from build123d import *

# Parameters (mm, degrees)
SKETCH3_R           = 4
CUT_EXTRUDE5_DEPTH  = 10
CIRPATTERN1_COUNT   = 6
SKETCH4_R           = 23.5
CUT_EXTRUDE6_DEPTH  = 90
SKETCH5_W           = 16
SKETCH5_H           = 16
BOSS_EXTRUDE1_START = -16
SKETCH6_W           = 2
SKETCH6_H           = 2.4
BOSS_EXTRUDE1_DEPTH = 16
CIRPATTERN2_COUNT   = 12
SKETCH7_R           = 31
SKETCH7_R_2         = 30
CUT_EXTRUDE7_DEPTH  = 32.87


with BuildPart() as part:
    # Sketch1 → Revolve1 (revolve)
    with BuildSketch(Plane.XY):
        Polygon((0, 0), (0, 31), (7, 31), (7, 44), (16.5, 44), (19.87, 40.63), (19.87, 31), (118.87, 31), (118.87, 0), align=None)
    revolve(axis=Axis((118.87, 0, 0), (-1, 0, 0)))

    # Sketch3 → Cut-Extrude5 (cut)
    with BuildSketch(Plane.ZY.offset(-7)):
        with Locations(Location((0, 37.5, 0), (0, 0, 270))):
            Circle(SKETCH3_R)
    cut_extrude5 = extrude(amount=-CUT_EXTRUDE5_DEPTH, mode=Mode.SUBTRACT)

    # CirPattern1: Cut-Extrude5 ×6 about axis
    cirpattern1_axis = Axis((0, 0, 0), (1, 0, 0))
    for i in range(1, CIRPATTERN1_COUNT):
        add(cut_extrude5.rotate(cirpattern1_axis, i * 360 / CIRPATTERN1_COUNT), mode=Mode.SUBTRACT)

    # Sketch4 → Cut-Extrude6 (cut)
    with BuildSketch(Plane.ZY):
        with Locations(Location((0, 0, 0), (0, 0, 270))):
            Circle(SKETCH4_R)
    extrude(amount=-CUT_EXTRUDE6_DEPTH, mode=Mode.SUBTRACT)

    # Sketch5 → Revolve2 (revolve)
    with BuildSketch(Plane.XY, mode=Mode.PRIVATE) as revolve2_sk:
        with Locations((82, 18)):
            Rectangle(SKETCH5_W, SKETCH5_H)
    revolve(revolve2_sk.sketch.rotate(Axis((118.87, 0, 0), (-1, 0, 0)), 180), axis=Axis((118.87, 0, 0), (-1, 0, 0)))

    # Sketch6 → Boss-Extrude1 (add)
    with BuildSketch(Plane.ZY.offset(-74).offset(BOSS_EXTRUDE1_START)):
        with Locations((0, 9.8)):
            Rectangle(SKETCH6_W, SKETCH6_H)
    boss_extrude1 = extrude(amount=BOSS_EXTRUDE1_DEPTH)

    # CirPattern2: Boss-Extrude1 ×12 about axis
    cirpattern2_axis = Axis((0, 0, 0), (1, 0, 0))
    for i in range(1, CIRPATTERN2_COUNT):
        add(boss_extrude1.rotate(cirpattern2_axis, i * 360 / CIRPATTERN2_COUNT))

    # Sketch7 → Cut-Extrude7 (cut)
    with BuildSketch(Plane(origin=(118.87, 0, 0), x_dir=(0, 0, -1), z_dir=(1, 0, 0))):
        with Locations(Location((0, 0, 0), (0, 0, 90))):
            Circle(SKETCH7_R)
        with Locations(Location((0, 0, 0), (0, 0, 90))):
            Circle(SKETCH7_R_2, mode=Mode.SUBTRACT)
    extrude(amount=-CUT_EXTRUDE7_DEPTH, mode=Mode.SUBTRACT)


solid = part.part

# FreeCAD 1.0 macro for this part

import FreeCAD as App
import Part
import Sketcher
Q = App.Units.Quantity

doc = App.newDocument("Part")
body = doc.addObject("PartDesign::Body", "Body")

# Sketch on XY plane
sketch1 = doc.addObject("Sketcher::SketchObject", "Sketch")
body.addObject(sketch1)
sketch1.AttachmentSupport = (doc.XY_Plane, [""])
sketch1.MapMode = "FlatFace"
sketch1.addGeometry(Part.LineSegment(App.Vector(0, 31, 0), App.Vector(0, 0, 0)), False)
sketch1.addGeometry(Part.LineSegment(App.Vector(0, 0, 0), App.Vector(118.9, 0, 0)), False)
sketch1.addGeometry(Part.LineSegment(App.Vector(118.9, 0, 0), App.Vector(118.9, 31, 0)), False)
sketch1.addGeometry(Part.LineSegment(App.Vector(118.9, 31, 0), App.Vector(19.9, 31, 0)), False)
sketch1.addGeometry(Part.LineSegment(App.Vector(19.9, 31, 0), App.Vector(19.9, 40.6, 0)), False)
sketch1.addGeometry(Part.LineSegment(App.Vector(19.9, 40.6, 0), App.Vector(16.5, 44, 0)), False)
sketch1.addGeometry(Part.LineSegment(App.Vector(16.5, 44, 0), App.Vector(7, 44, 0)), False)
sketch1.addGeometry(Part.LineSegment(App.Vector(7, 44, 0), App.Vector(7, 31, 0)), False)
sketch1.addGeometry(Part.LineSegment(App.Vector(7, 31, 0), App.Vector(0, 31, 0)), False)
sketch1.addConstraint(Sketcher.Constraint("Coincident", 0, 2, 1, 1))
sketch1.addConstraint(Sketcher.Constraint("Coincident", 1, 2, 2, 1))
sketch1.addConstraint(Sketcher.Constraint("Coincident", 2, 2, 3, 1))
sketch1.addConstraint(Sketcher.Constraint("Coincident", 3, 2, 4, 1))
sketch1.addConstraint(Sketcher.Constraint("Coincident", 4, 2, 5, 1))
sketch1.addConstraint(Sketcher.Constraint("Coincident", 5, 2, 6, 1))
sketch1.addConstraint(Sketcher.Constraint("Coincident", 6, 2, 7, 1))
sketch1.addConstraint(Sketcher.Constraint("Coincident", 7, 2, 8, 1))
sketch1.addConstraint(Sketcher.Constraint("Coincident", 8, 2, 0, 1))
sketch1.addConstraint(Sketcher.Constraint("Vertical", 0))
sketch1.addConstraint(Sketcher.Constraint("Horizontal", 1))
sketch1.addConstraint(Sketcher.Constraint("Vertical", 2))
sketch1.addConstraint(Sketcher.Constraint("Horizontal", 3))
sketch1.addConstraint(Sketcher.Constraint("Vertical", 4))
sketch1.addConstraint(Sketcher.Constraint("Horizontal", 6))
sketch1.addConstraint(Sketcher.Constraint("Vertical", 7))
sketch1.addConstraint(Sketcher.Constraint("Horizontal", 8))
sketch1.addConstraint(Sketcher.Constraint("Coincident", 0, 2, -1, 1))
sketch1.addConstraint(Sketcher.Constraint("Horizontal", 3, 2, 7, 2))
sketch1.addConstraint(Sketcher.Constraint("DistanceX", 3, 2, 3, 1, Q("99 mm")))
sketch1.addConstraint(Sketcher.Constraint("DistanceX", 8, 2, 8, 1, Q("7 mm")))
sketch1.addConstraint(Sketcher.Constraint("DistanceY", 0, 2, 0, 1, Q("31 mm")))
sketch1.addConstraint(Sketcher.Constraint("DistanceY", 7, 2, 7, 1, Q("13 mm")))
sketch1.addConstraint(Sketcher.Constraint("Angle", 5, Q("135 deg")))
sketch1.addConstraint(Sketcher.Constraint("DistanceX", 6, 2, 6, 1, Q("9.5 mm")))
sketch1.addConstraint(Sketcher.Constraint("DistanceX", 1, 1, 1, 2, Q("118.87 mm")))
revolution = doc.addObject("PartDesign::Revolution", "Revolution")
body.addObject(revolution)
revolution.Profile = sketch1
revolution.ReferenceAxis = (sketch1, ["H_Axis"])
revolution.Angle = 360

# Sketch on YZ plane
sketch2 = doc.addObject("Sketcher::SketchObject", "Sketch001")
body.addObject(sketch2)
sketch2.AttachmentSupport = (doc.YZ_Plane, [""])
sketch2.MapMode = "FlatFace"
sketch2.AttachmentOffset = App.Placement(App.Vector(0, 0, 7), App.Rotation())
sketch2.addGeometry(Part.Circle(App.Vector(37.5, 0, 0), App.Vector(0, 0, 1), 4), False)
sketch2.addConstraint(Sketcher.Constraint("PointOnObject", 0, 3, -1))
sketch2.addConstraint(Sketcher.Constraint("Diameter", 0, Q("8 mm")))
sketch2.addConstraint(Sketcher.Constraint("DistanceX", -1, 1, 0, 3, Q("37.5 mm")))
pocket1 = doc.addObject("PartDesign::Pocket", "Pocket")
body.addObject(pocket1)
pocket1.Profile = sketch2
pocket1.Length = 10
pocket1.Reversed = True
doc.recompute()

polarpattern = doc.addObject("PartDesign::PolarPattern", "PolarPattern")
body.addObject(polarpattern)
polarpattern.Originals = [pocket1]
polarpattern.Axis = (doc.X_Axis, [""])
polarpattern.Angle = 360
polarpattern.Occurrences = 6
body.Tip = polarpattern

# Sketch on YZ plane
sketch3 = doc.addObject("Sketcher::SketchObject", "Sketch002")
body.addObject(sketch3)
sketch3.AttachmentSupport = (doc.YZ_Plane, [""])
sketch3.MapMode = "FlatFace"
sketch3.addGeometry(Part.Circle(App.Vector(0, 0, 0), App.Vector(0, 0, 1), 24), False)
sketch3.addConstraint(Sketcher.Constraint("Coincident", 0, 3, -1, 1))
sketch3.addConstraint(Sketcher.Constraint("Diameter", 0, Q("47 mm")))
pocket2 = doc.addObject("PartDesign::Pocket", "Pocket001")
body.addObject(pocket2)
pocket2.Profile = sketch3
pocket2.Length = 90
pocket2.Reversed = True

# Sketch on XY plane
sketch4 = doc.addObject("Sketcher::SketchObject", "Sketch003")
body.addObject(sketch4)
sketch4.AttachmentSupport = (doc.XY_Plane, [""])
sketch4.MapMode = "FlatFace"
sketch4.addGeometry(Part.LineSegment(App.Vector(74, 26, 0), App.Vector(74, 10, 0)), False)
sketch4.addGeometry(Part.LineSegment(App.Vector(74, 10, 0), App.Vector(90, 10, 0)), False)
sketch4.addGeometry(Part.LineSegment(App.Vector(90, 10, 0), App.Vector(90, 26, 0)), False)
sketch4.addGeometry(Part.LineSegment(App.Vector(90, 26, 0), App.Vector(74, 26, 0)), False)
sketch4.addConstraint(Sketcher.Constraint("Coincident", 0, 2, 1, 1))
sketch4.addConstraint(Sketcher.Constraint("Coincident", 1, 2, 2, 1))
sketch4.addConstraint(Sketcher.Constraint("Coincident", 2, 2, 3, 1))
sketch4.addConstraint(Sketcher.Constraint("Coincident", 3, 2, 0, 1))
sketch4.addConstraint(Sketcher.Constraint("Vertical", 0))
sketch4.addConstraint(Sketcher.Constraint("Horizontal", 1))
sketch4.addConstraint(Sketcher.Constraint("Vertical", 2))
sketch4.addConstraint(Sketcher.Constraint("Horizontal", 3))
sketch4.addConstraint(Sketcher.Constraint("Equal", 3, 0))
sketch4.addConstraint(Sketcher.Constraint("DistanceX", 1, 1, 1, 2, Q("16 mm")))
sketch4.addConstraint(Sketcher.Constraint("DistanceX", -1, 1, 0, 2, Q("74 mm")))
sketch4.addConstraint(Sketcher.Constraint("DistanceY", -1, 1, 0, 2, Q("10 mm")))
revolution2 = doc.addObject("PartDesign::Revolution", "Revolution001")
body.addObject(revolution2)
revolution2.Profile = sketch4
revolution2.ReferenceAxis = (sketch4, ["H_Axis"])
revolution2.Angle = 360

# Sketch on YZ plane
sketch5 = doc.addObject("Sketcher::SketchObject", "Sketch004")
body.addObject(sketch5)
sketch5.AttachmentSupport = (doc.YZ_Plane, [""])
sketch5.MapMode = "FlatFace"
sketch5.AttachmentOffset = App.Placement(App.Vector(0, 0, 90), App.Rotation())
sketch5.addGeometry(Part.LineSegment(App.Vector(11, -1, 0), App.Vector(8.6, -1, 0)), False)
sketch5.addGeometry(Part.LineSegment(App.Vector(8.6, -1, 0), App.Vector(8.6, 1, 0)), False)
sketch5.addGeometry(Part.LineSegment(App.Vector(8.6, 1, 0), App.Vector(11, 1, 0)), False)
sketch5.addGeometry(Part.LineSegment(App.Vector(11, 1, 0), App.Vector(11, -1, 0)), False)
sketch5.addConstraint(Sketcher.Constraint("Coincident", 0, 2, 1, 1))
sketch5.addConstraint(Sketcher.Constraint("Coincident", 1, 2, 2, 1))
sketch5.addConstraint(Sketcher.Constraint("Coincident", 2, 2, 3, 1))
sketch5.addConstraint(Sketcher.Constraint("Coincident", 3, 2, 0, 1))
sketch5.addConstraint(Sketcher.Constraint("Horizontal", 0))
sketch5.addConstraint(Sketcher.Constraint("Vertical", 1))
sketch5.addConstraint(Sketcher.Constraint("Horizontal", 2))
sketch5.addConstraint(Sketcher.Constraint("Vertical", 3))
sketch5.addConstraint(Sketcher.Constraint("DistanceY", 1, 1, 1, 2, Q("2 mm")))
sketch5.addConstraint(Sketcher.Constraint("DistanceX", 0, 2, 0, 1, Q("2.4 mm")))
sketch5.addConstraint(Sketcher.Constraint("DistanceY", 0, 2, -1, 1, Q("1 mm")))
sketch5.addConstraint(Sketcher.Constraint("DistanceX", -1, 1, 2, 2, Q("11 mm")))
pad1 = doc.addObject("PartDesign::Pad", "Pad")
body.addObject(pad1)
pad1.Profile = sketch5
pad1.Length = 16
pad1.Reversed = True
doc.recompute()

polarpattern2 = doc.addObject("PartDesign::PolarPattern", "PolarPattern001")
body.addObject(polarpattern2)
polarpattern2.Originals = [pad1]
polarpattern2.Axis = (doc.X_Axis, [""])
polarpattern2.Angle = 360
polarpattern2.Occurrences = 12
body.Tip = polarpattern2

# Sketch on YZ plane
sketch6 = doc.addObject("Sketcher::SketchObject", "Sketch005")
body.addObject(sketch6)
sketch6.AttachmentSupport = (doc.YZ_Plane, [""])
sketch6.MapMode = "FlatFace"
sketch6.AttachmentOffset = App.Placement(App.Vector(0, 0, 118.87), App.Rotation())
sketch6.addGeometry(Part.Circle(App.Vector(0, 0, 0), App.Vector(0, 0, 1), 31), False)
sketch6.addGeometry(Part.Circle(App.Vector(0, 0, 0), App.Vector(0, 0, 1), 30), False)
sketch6.addConstraint(Sketcher.Constraint("Coincident", 0, 3, -1, 1))
sketch6.addConstraint(Sketcher.Constraint("Coincident", 1, 3, -1, 1))
sketch6.addConstraint(Sketcher.Constraint("Diameter", 0, Q("62 mm")))
sketch6.addConstraint(Sketcher.Constraint("Diameter", 1, Q("60 mm")))
pocket3 = doc.addObject("PartDesign::Pocket", "Pocket002")
body.addObject(pocket3)
pocket3.Profile = sketch6
pocket3.Length = 32.87

doc.recompute()
